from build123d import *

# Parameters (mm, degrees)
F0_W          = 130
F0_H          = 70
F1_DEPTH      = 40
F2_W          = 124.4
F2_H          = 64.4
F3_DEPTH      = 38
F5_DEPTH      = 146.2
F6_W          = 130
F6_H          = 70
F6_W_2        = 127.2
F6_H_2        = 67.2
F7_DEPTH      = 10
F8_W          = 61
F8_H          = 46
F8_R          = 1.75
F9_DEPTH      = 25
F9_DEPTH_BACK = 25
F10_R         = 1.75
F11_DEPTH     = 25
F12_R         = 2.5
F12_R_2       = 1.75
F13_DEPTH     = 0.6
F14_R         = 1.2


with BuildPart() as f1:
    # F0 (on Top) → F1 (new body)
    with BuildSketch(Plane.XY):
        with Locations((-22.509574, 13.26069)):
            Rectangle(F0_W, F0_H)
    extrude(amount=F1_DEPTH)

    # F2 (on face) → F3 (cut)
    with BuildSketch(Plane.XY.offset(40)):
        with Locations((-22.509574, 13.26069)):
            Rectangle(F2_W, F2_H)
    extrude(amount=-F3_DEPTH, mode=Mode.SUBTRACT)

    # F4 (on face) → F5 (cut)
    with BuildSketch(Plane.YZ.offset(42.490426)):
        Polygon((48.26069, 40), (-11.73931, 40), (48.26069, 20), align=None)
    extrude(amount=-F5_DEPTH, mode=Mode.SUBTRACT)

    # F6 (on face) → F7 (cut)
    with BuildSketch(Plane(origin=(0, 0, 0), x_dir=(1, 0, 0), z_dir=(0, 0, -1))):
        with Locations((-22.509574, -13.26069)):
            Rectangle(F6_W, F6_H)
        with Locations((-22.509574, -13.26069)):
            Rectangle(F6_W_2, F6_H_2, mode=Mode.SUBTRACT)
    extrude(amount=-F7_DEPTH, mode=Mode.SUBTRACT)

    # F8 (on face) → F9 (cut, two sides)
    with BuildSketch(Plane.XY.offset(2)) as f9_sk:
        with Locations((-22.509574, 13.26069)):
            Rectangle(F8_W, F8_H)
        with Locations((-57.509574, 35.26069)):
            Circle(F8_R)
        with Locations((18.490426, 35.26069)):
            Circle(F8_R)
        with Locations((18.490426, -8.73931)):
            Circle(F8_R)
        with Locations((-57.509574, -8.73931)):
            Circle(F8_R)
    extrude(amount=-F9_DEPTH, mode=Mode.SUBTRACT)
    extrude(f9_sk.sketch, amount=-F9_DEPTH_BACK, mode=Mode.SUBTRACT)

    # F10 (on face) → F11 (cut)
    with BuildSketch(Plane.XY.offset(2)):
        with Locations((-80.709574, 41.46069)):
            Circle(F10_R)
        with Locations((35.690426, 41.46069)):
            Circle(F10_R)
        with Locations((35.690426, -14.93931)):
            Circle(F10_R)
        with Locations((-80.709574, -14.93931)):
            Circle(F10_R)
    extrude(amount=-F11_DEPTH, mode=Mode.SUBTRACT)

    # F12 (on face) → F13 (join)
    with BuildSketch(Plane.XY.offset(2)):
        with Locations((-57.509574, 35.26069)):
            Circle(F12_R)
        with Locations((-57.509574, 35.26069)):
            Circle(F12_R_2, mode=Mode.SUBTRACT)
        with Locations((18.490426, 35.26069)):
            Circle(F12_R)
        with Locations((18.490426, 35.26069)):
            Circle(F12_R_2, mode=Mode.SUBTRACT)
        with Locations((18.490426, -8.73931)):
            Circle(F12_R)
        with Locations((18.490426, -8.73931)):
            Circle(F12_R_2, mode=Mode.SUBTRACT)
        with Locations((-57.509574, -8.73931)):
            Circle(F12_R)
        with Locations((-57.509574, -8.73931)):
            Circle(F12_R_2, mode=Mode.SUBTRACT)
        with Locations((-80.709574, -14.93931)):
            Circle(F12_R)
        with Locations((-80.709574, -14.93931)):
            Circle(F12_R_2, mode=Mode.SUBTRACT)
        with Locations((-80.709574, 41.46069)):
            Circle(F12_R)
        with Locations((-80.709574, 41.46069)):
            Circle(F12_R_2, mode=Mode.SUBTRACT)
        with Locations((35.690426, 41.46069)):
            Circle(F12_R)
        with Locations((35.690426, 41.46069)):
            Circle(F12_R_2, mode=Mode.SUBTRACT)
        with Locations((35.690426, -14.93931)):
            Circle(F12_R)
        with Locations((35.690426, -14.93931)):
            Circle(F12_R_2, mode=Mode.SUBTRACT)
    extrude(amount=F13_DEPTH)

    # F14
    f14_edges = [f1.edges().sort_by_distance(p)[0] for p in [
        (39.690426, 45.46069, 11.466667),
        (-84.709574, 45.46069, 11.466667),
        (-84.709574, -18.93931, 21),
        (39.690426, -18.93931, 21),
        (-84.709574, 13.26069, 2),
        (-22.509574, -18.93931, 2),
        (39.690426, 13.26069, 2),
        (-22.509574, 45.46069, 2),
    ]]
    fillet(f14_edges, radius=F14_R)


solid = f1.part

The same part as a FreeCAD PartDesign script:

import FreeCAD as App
import Part
import Sketcher

V = App.Vector


def edges_at(feature, points):
    """Names of the edges that pass closest to the given points."""
    edges = feature.Shape.Edges
    near = lambda p: min(range(len(edges)), key=lambda i: edges[i].distToShape(Part.Vertex(*p))[0])
    return sorted({f"Edge{near(p) + 1}" for p in points})


def add_polygon(sketch, points):
    """Adds a closed chain of lines whose ends are joined by coincident constraints."""
    first, n = sketch.GeometryCount, len(points)
    for a, b in zip(points, points[1:] + points[:1]):
        sketch.addGeometry(Part.LineSegment(App.Vector(*a, 0), App.Vector(*b, 0)), False)
    for i in range(n):
        sketch.addConstraint(Sketcher.Constraint("Coincident", first + i, 2, first + (i + 1) % n, 1))

doc = App.newDocument("Part")
body = doc.addObject("PartDesign::Body", "Body")

# Sketch on XY plane
sketch1 = doc.addObject("Sketcher::SketchObject", "Sketch")
body.addObject(sketch1)
sketch1.AttachmentSupport = (doc.XY_Plane, [""])
sketch1.MapMode = "FlatFace"
add_polygon(sketch1, [(-87.509574, 48.26069), (-87.509574, -21.73931), (42.490426, -21.73931), (42.490426, 48.26069)])  # lines 0-3
sketch1.addConstraint(Sketcher.Constraint("Vertical", 0))
sketch1.addConstraint(Sketcher.Constraint("Horizontal", 1))
sketch1.addConstraint(Sketcher.Constraint("Vertical", 2))
sketch1.addConstraint(Sketcher.Constraint("Horizontal", 3))
sketch1.addConstraint(Sketcher.Constraint("DistanceX", 1, 1, 1, 2, 130.0))
sketch1.addConstraint(Sketcher.Constraint("DistanceY", 0, 2, 0, 1, 70.0))
sketch1.addConstraint(Sketcher.Constraint("DistanceY", 0, 2, -1, 1, 21.73931))
sketch1.addConstraint(Sketcher.Constraint("DistanceX", 0, 2, -1, 1, 87.509574))
pad1 = doc.addObject("PartDesign::Pad", "Pad")
body.addObject(pad1)
pad1.Profile = sketch1
pad1.Length = 40

# Sketch on XY plane
sketch2 = doc.addObject("Sketcher::SketchObject", "Sketch001")
body.addObject(sketch2)
sketch2.AttachmentSupport = (doc.XY_Plane, [""])
sketch2.MapMode = "FlatFace"
sketch2.AttachmentOffset = App.Placement(V(0, 0, 40), App.Rotation())
add_polygon(sketch2, [(-84.709574, 45.46069), (-84.709574, -18.93931), (39.690426, -18.93931), (39.690426, 45.46069)])  # lines 0-3
sketch2.addConstraint(Sketcher.Constraint("Vertical", 0))
sketch2.addConstraint(Sketcher.Constraint("Horizontal", 1))
sketch2.addConstraint(Sketcher.Constraint("Vertical", 2))
sketch2.addConstraint(Sketcher.Constraint("Horizontal", 3))
sketch2.addConstraint(Sketcher.Constraint("DistanceX", 1, 1, 1, 2, 124.4))
sketch2.addConstraint(Sketcher.Constraint("DistanceY", 0, 2, 0, 1, 64.4))
sketch2.addConstraint(Sketcher.Constraint("DistanceY", 0, 2, -1, 1, 18.93931))
sketch2.addConstraint(Sketcher.Constraint("DistanceX", 0, 2, -1, 1, 84.709574))
pocket1 = doc.addObject("PartDesign::Pocket", "Pocket")
body.addObject(pocket1)
pocket1.Profile = sketch2
pocket1.Length = 38

# Sketch on YZ plane
sketch3 = doc.addObject("Sketcher::SketchObject", "Sketch002")
body.addObject(sketch3)
sketch3.AttachmentSupport = (doc.YZ_Plane, [""])
sketch3.MapMode = "FlatFace"
sketch3.AttachmentOffset = App.Placement(V(0, 0, 42.490426), App.Rotation())
add_polygon(sketch3, [(48.26069, 40), (-11.73931, 40), (48.26069, 20)])  # lines 0-2
sketch3.addConstraint(Sketcher.Constraint("Horizontal", 0))
sketch3.addConstraint(Sketcher.Constraint("Vertical", 2))
sketch3.addConstraint(Sketcher.Constraint("DistanceX", 0, 2, 0, 1, 60.0))
sketch3.addConstraint(Sketcher.Constraint("DistanceY", 2, 1, 2, 2, 20.0))
sketch3.addConstraint(Sketcher.Constraint("DistanceY", -1, 1, 0, 2, 40.0))
sketch3.addConstraint(Sketcher.Constraint("DistanceX", 0, 2, -1, 1, 11.73931))
pocket2 = doc.addObject("PartDesign::Pocket", "Pocket001")
body.addObject(pocket2)
pocket2.Profile = sketch3
pocket2.Length = 146.2

# Sketch on XY plane
sketch4 = doc.addObject("Sketcher::SketchObject", "Sketch003")
body.addObject(sketch4)
sketch4.AttachmentSupport = (doc.XY_Plane, [""])
sketch4.MapMode = "FlatFace"
add_polygon(sketch4, [(-87.509574, -21.73931), (-87.509574, 48.26069), (42.490426, 48.26069), (42.490426, -21.73931)])  # lines 0-3
add_polygon(sketch4, [(41.090426, 46.86069), (-86.109574, 46.86069), (-86.109574, -20.33931), (41.090426, -20.33931)])  # lines 4-7
sketch4.addConstraint(Sketcher.Constraint("Vertical", 0))
sketch4.addConstraint(Sketcher.Constraint("Horizontal", 1))
sketch4.addConstraint(Sketcher.Constraint("Vertical", 2))
sketch4.addConstraint(Sketcher.Constraint("Horizontal", 3))
sketch4.addConstraint(Sketcher.Constraint("Horizontal", 4))
sketch4.addConstraint(Sketcher.Constraint("Vertical", 5))
sketch4.addConstraint(Sketcher.Constraint("Horizontal", 6))
sketch4.addConstraint(Sketcher.Constraint("Vertical", 7))
sketch4.addConstraint(Sketcher.Constraint("DistanceX", 1, 1, 1, 2, 130.0))
sketch4.addConstraint(Sketcher.Constraint("DistanceY", 0, 1, 0, 2, 70.0))
sketch4.addConstraint(Sketcher.Constraint("DistanceX", 4, 2, 4, 1, 127.2))
sketch4.addConstraint(Sketcher.Constraint("DistanceY", 5, 2, 5, 1, 67.2))
sketch4.addConstraint(Sketcher.Constraint("DistanceX", 0, 2, 4, 2, 1.4))
sketch4.addConstraint(Sketcher.Constraint("DistanceY", 4, 2, 0, 2, 1.4))
sketch4.addConstraint(Sketcher.Constraint("DistanceY", -1, 1, 0, 2, 48.26069))
sketch4.addConstraint(Sketcher.Constraint("DistanceX", 0, 2, -1, 1, 87.509574))
pocket3 = doc.addObject("PartDesign::Pocket", "Pocket002")
body.addObject(pocket3)
pocket3.Profile = sketch4
pocket3.Length = 10
pocket3.Reversed = True

# Sketch on XY plane
sketch5 = doc.addObject("Sketcher::SketchObject", "Sketch004")
body.addObject(sketch5)
sketch5.AttachmentSupport = (doc.XY_Plane, [""])
sketch5.MapMode = "FlatFace"
sketch5.AttachmentOffset = App.Placement(V(0, 0, 2), App.Rotation())
add_polygon(sketch5, [(-53.009574, 36.26069), (-53.009574, -9.73931), (7.990426, -9.73931), (7.990426, 36.26069)])  # lines 0-3
sketch5.addGeometry(Part.Circle(V(-57.509574, 35.26069, 0), V(0, 0, 1), 1.75), False)  # 4
sketch5.addGeometry(Part.Circle(V(18.490426, 35.26069, 0), V(0, 0, 1), 1.75), False)  # 5
sketch5.addGeometry(Part.Circle(V(18.490426, -8.73931, 0), V(0, 0, 1), 1.75), False)  # 6
sketch5.addGeometry(Part.Circle(V(-57.509574, -8.73931, 0), V(0, 0, 1), 1.75), False)  # 7
sketch5.addConstraint(Sketcher.Constraint("Vertical", 0))
sketch5.addConstraint(Sketcher.Constraint("Horizontal", 1))
sketch5.addConstraint(Sketcher.Constraint("Vertical", 2))
sketch5.addConstraint(Sketcher.Constraint("Horizontal", 3))
sketch5.addConstraint(Sketcher.Constraint("Equal", 4, 5))
sketch5.addConstraint(Sketcher.Constraint("Equal", 5, 6))
sketch5.addConstraint(Sketcher.Constraint("Equal", 6, 7))
sketch5.addConstraint(Sketcher.Constraint("Horizontal", 4, 3, 5, 3))
sketch5.addConstraint(Sketcher.Constraint("Horizontal", 6, 3, 7, 3))
sketch5.addConstraint(Sketcher.Constraint("Vertical", 5, 3, 6, 3))
sketch5.addConstraint(Sketcher.Constraint("Vertical", 4, 3, 7, 3))
sketch5.addConstraint(Sketcher.Constraint("Diameter", 4, 3.5))
sketch5.addConstraint(Sketcher.Constraint("DistanceX", 1, 1, 1, 2, 61.0))
sketch5.addConstraint(Sketcher.Constraint("DistanceY", 0, 2, 0, 1, 46.0))
sketch5.addConstraint(Sketcher.Constraint("DistanceX", 4, 3, 5, 3, 76.0))
sketch5.addConstraint(Sketcher.Constraint("DistanceY", 6, 3, 5, 3, 44.0))
sketch5.addConstraint(Sketcher.Constraint("DistanceY", 0, 2, 7, 3, 1.0))
sketch5.addConstraint(Sketcher.Constraint("DistanceX", 7, 3, 0, 2, 4.5))
sketch5.addConstraint(Sketcher.Constraint("DistanceY", -1, 1, 4, 3, 35.26069))
sketch5.addConstraint(Sketcher.Constraint("DistanceX", 4, 3, -1, 1, 57.509574))
pocket4 = doc.addObject("PartDesign::Pocket", "Pocket003")
body.addObject(pocket4)
pocket4.Profile = sketch5
pocket4.Length = 25
pocket5 = doc.addObject("PartDesign::Pocket", "Pocket004")
body.addObject(pocket5)
pocket5.Profile = sketch5
pocket5.Length = 25

# Sketch on XY plane
sketch6 = doc.addObject("Sketcher::SketchObject", "Sketch005")
body.addObject(sketch6)
sketch6.AttachmentSupport = (doc.XY_Plane, [""])
sketch6.MapMode = "FlatFace"
sketch6.AttachmentOffset = App.Placement(V(0, 0, 2), App.Rotation())
sketch6.addGeometry(Part.Circle(V(-80.709574, 41.46069, 0), V(0, 0, 1), 1.75), False)
sketch6.addGeometry(Part.Circle(V(35.690426, 41.46069, 0), V(0, 0, 1), 1.75), False)
sketch6.addGeometry(Part.Circle(V(35.690426, -14.93931, 0), V(0, 0, 1), 1.75), False)
sketch6.addGeometry(Part.Circle(V(-80.709574, -14.93931, 0), V(0, 0, 1), 1.75), False)
sketch6.addConstraint(Sketcher.Constraint("Equal", 0, 1))
sketch6.addConstraint(Sketcher.Constraint("Equal", 1, 2))
sketch6.addConstraint(Sketcher.Constraint("Equal", 2, 3))
sketch6.addConstraint(Sketcher.Constraint("Horizontal", 0, 3, 1, 3))
sketch6.addConstraint(Sketcher.Constraint("Horizontal", 2, 3, 3, 3))
sketch6.addConstraint(Sketcher.Constraint("Vertical", 1, 3, 2, 3))
sketch6.addConstraint(Sketcher.Constraint("Vertical", 0, 3, 3, 3))
sketch6.addConstraint(Sketcher.Constraint("Diameter", 0, 3.5))
sketch6.addConstraint(Sketcher.Constraint("DistanceX", 0, 3, 1, 3, 116.4))
sketch6.addConstraint(Sketcher.Constraint("DistanceY", 2, 3, 1, 3, 56.4))
sketch6.addConstraint(Sketcher.Constraint("DistanceY", -1, 1, 0, 3, 41.46069))
sketch6.addConstraint(Sketcher.Constraint("DistanceX", 0, 3, -1, 1, 80.709574))
pocket6 = doc.addObject("PartDesign::Pocket", "Pocket005")
body.addObject(pocket6)
pocket6.Profile = sketch6
pocket6.Length = 25

# Sketch on XY plane
sketch7 = doc.addObject("Sketcher::SketchObject", "Sketch006")
body.addObject(sketch7)
sketch7.AttachmentSupport = (doc.XY_Plane, [""])
sketch7.MapMode = "FlatFace"
sketch7.AttachmentOffset = App.Placement(V(0, 0, 2), App.Rotation())
sketch7.addGeometry(Part.Circle(V(-57.509574, 35.26069, 0), V(0, 0, 1), 2.5), False)
sketch7.addGeometry(Part.Circle(V(-57.509574, 35.26069, 0), V(0, 0, 1), 1.75), False)
sketch7.addGeometry(Part.Circle(V(18.490426, 35.26069, 0), V(0, 0, 1), 2.5), False)
sketch7.addGeometry(Part.Circle(V(18.490426, 35.26069, 0), V(0, 0, 1), 1.75), False)
sketch7.addGeometry(Part.Circle(V(18.490426, -8.73931, 0), V(0, 0, 1), 2.5), False)
sketch7.addGeometry(Part.Circle(V(18.490426, -8.73931, 0), V(0, 0, 1), 1.75), False)
sketch7.addGeometry(Part.Circle(V(-57.509574, -8.73931, 0), V(0, 0, 1), 2.5), False)
sketch7.addGeometry(Part.Circle(V(-57.509574, -8.73931, 0), V(0, 0, 1), 1.75), False)
sketch7.addGeometry(Part.Circle(V(-80.709574, -14.93931, 0), V(0, 0, 1), 2.5), False)
sketch7.addGeometry(Part.Circle(V(-80.709574, -14.93931, 0), V(0, 0, 1), 1.75), False)
sketch7.addGeometry(Part.Circle(V(-80.709574, 41.46069, 0), V(0, 0, 1), 2.5), False)
sketch7.addGeometry(Part.Circle(V(-80.709574, 41.46069, 0), V(0, 0, 1), 1.75), False)
sketch7.addGeometry(Part.Circle(V(35.690426, 41.46069, 0), V(0, 0, 1), 2.5), False)
sketch7.addGeometry(Part.Circle(V(35.690426, 41.46069, 0), V(0, 0, 1), 1.75), False)
sketch7.addGeometry(Part.Circle(V(35.690426, -14.93931, 0), V(0, 0, 1), 2.5), False)
sketch7.addGeometry(Part.Circle(V(35.690426, -14.93931, 0), V(0, 0, 1), 1.75), False)
sketch7.addConstraint(Sketcher.Constraint("Coincident", 1, 3, 0, 3))
sketch7.addConstraint(Sketcher.Constraint("Coincident", 3, 3, 2, 3))
sketch7.addConstraint(Sketcher.Constraint("Coincident", 5, 3, 4, 3))
sketch7.addConstraint(Sketcher.Constraint("Coincident", 7, 3, 6, 3))
sketch7.addConstraint(Sketcher.Constraint("Coincident", 9, 3, 8, 3))
sketch7.addConstraint(Sketcher.Constraint("Coincident", 11, 3, 10, 3))
sketch7.addConstraint(Sketcher.Constraint("Coincident", 13, 3, 12, 3))
sketch7.addConstraint(Sketcher.Constraint("Coincident", 15, 3, 14, 3))
sketch7.addConstraint(Sketcher.Constraint("Equal", 0, 2))
sketch7.addConstraint(Sketcher.Constraint("Equal", 1, 3))
sketch7.addConstraint(Sketcher.Constraint("Equal", 2, 4))
sketch7.addConstraint(Sketcher.Constraint("Equal", 3, 5))
sketch7.addConstraint(Sketcher.Constraint("Equal", 4, 6))
sketch7.addConstraint(Sketcher.Constraint("Equal", 5, 7))
sketch7.addConstraint(Sketcher.Constraint("Equal", 6, 8))
sketch7.addConstraint(Sketcher.Constraint("Equal", 7, 9))
sketch7.addConstraint(Sketcher.Constraint("Equal", 8, 10))
sketch7.addConstraint(Sketcher.Constraint("Equal", 9, 11))
sketch7.addConstraint(Sketcher.Constraint("Equal", 10, 12))
sketch7.addConstraint(Sketcher.Constraint("Equal", 11, 13))
sketch7.addConstraint(Sketcher.Constraint("Equal", 12, 14))
sketch7.addConstraint(Sketcher.Constraint("Equal", 13, 15))
sketch7.addConstraint(Sketcher.Constraint("Horizontal", 1, 3, 2, 3))
sketch7.addConstraint(Sketcher.Constraint("Horizontal", 5, 3, 6, 3))
sketch7.addConstraint(Sketcher.Constraint("Horizontal", 11, 3, 12, 3))
sketch7.addConstraint(Sketcher.Constraint("Horizontal", 9, 3, 14, 3))
sketch7.addConstraint(Sketcher.Constraint("Vertical", 3, 3, 4, 3))
sketch7.addConstraint(Sketcher.Constraint("Vertical", 1, 3, 6, 3))
sketch7.addConstraint(Sketcher.Constraint("Vertical", 9, 3, 10, 3))
sketch7.addConstraint(Sketcher.Constraint("Vertical", 13, 3, 14, 3))
sketch7.addConstraint(Sketcher.Constraint("Diameter", 0, 5.0))
sketch7.addConstraint(Sketcher.Constraint("Diameter", 1, 3.5))
sketch7.addConstraint(Sketcher.Constraint("DistanceX", 0, 3, 2, 3, 76.0))
sketch7.addConstraint(Sketcher.Constraint("DistanceY", 4, 3, 2, 3, 44.0))
sketch7.addConstraint(Sketcher.Constraint("DistanceX", 8, 3, 6, 3, 23.2))
sketch7.addConstraint(Sketcher.Constraint("DistanceY", 8, 3, 6, 3, 6.2))
sketch7.addConstraint(Sketcher.Constraint("DistanceY", 0, 3, 10, 3, 6.2))
sketch7.addConstraint(Sketcher.Constraint("DistanceX", 2, 3, 12, 3, 17.2))
sketch7.addConstraint(Sketcher.Constraint("DistanceY", -1, 1, 0, 3, 35.26069))
sketch7.addConstraint(Sketcher.Constraint("DistanceX", 0, 3, -1, 1, 57.509574))
pad2 = doc.addObject("PartDesign::Pad", "Pad001")
body.addObject(pad2)
pad2.Profile = sketch7
pad2.Length = 0.6
doc.recompute()

fillet = doc.addObject("PartDesign::Fillet", "Fillet")
body.addObject(fillet)
fillet.Base = (pad2, edges_at(pad2, [
    (39.69, 45.461, 11.467),
    (-84.71, 45.461, 11.467),
    (-84.71, -18.939, 21),
    (39.69, -18.939, 21),
    (-84.71, 13.261, 2),
    (-22.51, -18.939, 2),
    (39.69, 13.261, 2),
    (-22.51, 45.461, 2),
]))
fillet.Radius = 1.2

doc.recompute()
